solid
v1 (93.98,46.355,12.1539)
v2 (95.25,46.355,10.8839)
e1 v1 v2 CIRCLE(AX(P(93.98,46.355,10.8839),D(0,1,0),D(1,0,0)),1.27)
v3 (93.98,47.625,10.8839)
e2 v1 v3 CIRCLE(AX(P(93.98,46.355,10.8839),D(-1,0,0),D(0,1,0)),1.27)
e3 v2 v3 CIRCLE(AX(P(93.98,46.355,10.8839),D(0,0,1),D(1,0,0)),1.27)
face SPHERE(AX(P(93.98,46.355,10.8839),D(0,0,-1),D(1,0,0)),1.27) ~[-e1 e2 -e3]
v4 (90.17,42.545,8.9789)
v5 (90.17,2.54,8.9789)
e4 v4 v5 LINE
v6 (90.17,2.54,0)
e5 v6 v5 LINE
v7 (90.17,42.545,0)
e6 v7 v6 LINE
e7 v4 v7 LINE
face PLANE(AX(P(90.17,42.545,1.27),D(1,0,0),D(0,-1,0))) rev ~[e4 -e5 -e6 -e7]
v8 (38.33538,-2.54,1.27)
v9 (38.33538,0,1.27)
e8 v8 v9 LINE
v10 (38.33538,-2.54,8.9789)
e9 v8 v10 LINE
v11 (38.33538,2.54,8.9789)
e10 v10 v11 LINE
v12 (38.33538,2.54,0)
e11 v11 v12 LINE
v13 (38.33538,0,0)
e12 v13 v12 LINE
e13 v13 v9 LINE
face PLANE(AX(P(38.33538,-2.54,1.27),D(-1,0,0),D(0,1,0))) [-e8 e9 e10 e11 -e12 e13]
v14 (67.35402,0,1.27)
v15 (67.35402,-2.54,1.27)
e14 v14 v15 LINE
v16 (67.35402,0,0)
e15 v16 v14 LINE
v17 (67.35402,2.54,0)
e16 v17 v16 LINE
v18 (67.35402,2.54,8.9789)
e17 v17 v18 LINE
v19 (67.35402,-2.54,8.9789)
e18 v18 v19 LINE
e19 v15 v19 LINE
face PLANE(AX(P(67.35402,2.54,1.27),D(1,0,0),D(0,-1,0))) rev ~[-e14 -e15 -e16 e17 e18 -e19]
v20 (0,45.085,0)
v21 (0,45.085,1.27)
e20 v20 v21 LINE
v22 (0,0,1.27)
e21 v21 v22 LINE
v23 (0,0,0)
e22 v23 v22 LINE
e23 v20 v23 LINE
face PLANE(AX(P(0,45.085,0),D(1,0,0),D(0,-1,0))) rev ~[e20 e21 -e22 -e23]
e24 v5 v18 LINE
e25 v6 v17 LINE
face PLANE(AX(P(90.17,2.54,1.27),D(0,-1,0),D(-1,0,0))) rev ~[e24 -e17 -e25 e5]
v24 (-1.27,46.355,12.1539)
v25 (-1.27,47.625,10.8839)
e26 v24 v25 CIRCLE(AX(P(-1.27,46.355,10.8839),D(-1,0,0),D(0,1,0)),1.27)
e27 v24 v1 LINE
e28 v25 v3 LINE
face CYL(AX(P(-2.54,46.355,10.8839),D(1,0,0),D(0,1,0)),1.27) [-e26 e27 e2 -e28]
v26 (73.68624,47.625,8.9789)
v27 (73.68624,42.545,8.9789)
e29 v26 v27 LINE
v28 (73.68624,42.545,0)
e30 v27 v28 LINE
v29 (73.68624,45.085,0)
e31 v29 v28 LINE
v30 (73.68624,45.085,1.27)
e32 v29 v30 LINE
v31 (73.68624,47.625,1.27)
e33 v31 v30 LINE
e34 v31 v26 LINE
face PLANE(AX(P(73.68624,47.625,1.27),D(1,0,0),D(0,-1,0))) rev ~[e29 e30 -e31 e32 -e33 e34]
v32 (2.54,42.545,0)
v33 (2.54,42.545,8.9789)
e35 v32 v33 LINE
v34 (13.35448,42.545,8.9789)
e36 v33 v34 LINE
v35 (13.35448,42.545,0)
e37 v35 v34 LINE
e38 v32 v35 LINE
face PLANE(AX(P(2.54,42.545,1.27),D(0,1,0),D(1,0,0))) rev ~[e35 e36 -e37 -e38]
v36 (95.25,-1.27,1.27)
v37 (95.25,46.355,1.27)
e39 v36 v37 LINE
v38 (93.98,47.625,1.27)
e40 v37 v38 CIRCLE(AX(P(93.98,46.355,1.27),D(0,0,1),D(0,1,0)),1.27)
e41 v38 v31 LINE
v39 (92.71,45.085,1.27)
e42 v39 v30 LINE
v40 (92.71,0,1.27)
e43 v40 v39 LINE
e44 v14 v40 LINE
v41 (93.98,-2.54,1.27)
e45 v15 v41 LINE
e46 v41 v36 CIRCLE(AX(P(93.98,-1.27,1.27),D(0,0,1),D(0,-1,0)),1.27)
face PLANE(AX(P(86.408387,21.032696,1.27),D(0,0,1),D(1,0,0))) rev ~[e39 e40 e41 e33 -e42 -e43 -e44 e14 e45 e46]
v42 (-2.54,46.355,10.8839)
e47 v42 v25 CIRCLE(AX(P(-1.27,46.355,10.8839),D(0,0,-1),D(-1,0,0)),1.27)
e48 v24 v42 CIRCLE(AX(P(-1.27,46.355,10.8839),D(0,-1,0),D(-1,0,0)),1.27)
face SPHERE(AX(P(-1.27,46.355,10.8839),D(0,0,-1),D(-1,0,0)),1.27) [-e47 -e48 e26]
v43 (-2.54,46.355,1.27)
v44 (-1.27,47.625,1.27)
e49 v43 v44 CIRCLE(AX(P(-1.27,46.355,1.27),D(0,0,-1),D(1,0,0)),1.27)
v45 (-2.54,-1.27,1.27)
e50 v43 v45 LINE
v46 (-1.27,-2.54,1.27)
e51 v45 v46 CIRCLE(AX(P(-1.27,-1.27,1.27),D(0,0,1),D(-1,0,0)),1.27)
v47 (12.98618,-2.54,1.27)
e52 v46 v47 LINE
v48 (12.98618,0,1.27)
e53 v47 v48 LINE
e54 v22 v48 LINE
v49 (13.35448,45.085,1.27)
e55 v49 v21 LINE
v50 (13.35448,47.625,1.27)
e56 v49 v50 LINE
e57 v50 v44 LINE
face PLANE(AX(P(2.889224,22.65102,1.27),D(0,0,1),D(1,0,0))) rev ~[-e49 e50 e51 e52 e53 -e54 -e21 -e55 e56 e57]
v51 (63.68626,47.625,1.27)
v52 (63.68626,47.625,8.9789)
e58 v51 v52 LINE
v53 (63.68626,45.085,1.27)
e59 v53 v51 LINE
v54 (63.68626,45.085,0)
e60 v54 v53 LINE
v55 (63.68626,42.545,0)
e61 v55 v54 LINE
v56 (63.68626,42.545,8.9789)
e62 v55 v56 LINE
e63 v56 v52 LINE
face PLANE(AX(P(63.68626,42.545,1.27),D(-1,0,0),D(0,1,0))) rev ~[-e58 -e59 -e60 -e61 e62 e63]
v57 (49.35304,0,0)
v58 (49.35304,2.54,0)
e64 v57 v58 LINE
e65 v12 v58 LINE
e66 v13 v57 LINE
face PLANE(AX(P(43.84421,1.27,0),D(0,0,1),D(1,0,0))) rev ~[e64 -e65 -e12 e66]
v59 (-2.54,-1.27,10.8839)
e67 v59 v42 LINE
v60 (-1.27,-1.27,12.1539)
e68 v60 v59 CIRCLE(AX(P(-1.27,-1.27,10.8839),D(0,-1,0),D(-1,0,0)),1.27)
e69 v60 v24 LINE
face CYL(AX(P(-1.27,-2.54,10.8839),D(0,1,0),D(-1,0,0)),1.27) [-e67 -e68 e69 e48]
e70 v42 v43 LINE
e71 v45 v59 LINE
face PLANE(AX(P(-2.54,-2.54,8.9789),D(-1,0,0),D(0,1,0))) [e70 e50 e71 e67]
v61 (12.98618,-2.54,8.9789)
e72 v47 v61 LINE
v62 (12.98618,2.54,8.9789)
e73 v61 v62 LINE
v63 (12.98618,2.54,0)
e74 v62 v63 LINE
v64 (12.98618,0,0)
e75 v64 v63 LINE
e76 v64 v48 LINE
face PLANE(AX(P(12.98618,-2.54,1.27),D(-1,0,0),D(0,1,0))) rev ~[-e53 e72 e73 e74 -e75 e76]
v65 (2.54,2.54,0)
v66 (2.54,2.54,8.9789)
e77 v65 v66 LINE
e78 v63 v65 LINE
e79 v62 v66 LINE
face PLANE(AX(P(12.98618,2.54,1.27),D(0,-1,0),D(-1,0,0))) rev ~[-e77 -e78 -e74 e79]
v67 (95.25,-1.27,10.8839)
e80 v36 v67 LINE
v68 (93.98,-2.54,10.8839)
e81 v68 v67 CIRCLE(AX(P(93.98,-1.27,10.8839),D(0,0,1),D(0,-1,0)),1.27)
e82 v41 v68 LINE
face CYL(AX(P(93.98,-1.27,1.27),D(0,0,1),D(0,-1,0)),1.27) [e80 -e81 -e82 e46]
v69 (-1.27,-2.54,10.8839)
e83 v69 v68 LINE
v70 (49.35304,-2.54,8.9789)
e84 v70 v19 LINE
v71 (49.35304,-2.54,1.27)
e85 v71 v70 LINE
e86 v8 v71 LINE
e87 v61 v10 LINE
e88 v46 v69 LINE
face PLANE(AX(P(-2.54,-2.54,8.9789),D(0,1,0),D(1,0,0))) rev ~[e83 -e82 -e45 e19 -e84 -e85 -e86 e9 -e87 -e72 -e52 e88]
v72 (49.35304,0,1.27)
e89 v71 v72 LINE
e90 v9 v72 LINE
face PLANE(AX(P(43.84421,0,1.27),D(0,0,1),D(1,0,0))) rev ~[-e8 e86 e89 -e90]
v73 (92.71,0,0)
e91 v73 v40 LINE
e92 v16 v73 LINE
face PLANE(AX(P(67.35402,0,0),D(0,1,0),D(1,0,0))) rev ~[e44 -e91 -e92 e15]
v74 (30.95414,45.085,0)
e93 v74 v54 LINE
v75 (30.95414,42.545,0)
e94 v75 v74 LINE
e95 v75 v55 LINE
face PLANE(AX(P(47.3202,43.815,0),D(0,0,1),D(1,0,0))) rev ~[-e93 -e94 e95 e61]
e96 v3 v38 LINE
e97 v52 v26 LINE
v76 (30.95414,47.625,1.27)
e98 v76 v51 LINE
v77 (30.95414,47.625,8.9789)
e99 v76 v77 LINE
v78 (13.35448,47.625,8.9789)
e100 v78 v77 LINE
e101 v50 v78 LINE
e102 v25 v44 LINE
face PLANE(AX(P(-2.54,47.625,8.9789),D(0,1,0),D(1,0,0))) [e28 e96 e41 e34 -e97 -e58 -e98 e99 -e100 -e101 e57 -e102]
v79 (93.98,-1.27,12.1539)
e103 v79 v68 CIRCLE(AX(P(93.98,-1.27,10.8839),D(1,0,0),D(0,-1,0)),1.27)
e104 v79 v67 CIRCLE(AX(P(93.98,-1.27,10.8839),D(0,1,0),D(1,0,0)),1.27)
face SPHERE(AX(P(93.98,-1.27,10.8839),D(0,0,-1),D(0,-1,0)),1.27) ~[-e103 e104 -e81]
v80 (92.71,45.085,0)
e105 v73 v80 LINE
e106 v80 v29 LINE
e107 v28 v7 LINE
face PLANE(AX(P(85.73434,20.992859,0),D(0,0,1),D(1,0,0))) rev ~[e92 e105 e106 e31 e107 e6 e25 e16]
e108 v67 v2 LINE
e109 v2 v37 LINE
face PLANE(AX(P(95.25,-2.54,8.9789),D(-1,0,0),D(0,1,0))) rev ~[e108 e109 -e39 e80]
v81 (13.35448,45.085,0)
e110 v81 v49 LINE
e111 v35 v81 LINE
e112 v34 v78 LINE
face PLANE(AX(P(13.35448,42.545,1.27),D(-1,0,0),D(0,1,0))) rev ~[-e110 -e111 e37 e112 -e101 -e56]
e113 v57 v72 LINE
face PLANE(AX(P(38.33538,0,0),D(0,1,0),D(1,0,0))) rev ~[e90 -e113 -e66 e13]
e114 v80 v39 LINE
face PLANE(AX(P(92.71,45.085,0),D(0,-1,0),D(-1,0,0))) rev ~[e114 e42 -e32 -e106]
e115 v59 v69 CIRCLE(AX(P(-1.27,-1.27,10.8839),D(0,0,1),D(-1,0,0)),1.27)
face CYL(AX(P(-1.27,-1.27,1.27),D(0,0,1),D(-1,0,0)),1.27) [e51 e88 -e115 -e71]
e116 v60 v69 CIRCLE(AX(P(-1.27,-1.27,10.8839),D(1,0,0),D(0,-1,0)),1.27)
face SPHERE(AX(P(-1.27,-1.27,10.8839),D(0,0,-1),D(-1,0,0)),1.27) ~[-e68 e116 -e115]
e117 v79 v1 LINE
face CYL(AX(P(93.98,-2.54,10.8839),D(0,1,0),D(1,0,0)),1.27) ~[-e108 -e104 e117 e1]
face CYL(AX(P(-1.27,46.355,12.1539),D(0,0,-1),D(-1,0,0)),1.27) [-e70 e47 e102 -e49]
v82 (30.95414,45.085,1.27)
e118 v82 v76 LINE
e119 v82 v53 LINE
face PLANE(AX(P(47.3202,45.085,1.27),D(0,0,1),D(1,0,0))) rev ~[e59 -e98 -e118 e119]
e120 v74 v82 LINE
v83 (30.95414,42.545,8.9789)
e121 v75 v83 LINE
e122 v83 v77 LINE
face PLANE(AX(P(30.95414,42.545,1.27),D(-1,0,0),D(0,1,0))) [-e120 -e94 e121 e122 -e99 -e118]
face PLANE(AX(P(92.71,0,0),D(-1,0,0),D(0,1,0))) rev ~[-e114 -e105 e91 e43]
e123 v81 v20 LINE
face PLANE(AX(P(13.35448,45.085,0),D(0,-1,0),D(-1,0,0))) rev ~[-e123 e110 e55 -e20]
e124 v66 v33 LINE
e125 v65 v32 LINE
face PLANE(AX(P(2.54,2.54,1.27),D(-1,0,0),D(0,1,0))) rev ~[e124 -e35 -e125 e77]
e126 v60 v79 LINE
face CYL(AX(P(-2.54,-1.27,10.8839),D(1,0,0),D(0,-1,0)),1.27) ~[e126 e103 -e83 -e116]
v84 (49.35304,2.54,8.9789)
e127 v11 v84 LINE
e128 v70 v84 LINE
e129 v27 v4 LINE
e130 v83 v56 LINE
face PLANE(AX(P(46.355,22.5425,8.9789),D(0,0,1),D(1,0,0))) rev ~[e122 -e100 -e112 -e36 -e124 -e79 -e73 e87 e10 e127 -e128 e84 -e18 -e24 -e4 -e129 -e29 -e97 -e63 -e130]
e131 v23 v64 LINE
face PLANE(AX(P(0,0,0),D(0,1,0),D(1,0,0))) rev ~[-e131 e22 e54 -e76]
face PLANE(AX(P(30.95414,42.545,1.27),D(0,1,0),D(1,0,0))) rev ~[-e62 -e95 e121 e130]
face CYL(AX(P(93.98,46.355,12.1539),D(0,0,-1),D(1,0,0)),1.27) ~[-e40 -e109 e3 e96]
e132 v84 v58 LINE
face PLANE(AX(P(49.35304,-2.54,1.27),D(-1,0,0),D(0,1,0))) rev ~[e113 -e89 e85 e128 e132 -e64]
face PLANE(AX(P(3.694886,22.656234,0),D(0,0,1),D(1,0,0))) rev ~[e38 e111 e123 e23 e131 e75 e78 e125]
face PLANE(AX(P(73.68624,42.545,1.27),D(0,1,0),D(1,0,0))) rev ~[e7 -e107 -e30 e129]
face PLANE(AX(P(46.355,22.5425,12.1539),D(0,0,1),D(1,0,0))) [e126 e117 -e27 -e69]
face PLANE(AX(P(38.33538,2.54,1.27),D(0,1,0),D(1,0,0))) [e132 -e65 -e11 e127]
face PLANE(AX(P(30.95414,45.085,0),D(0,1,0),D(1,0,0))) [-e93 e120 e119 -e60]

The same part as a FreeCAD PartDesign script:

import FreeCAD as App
import Part
import Sketcher
Q = App.Units.Quantity


def edges_at(feature, points):
    """Names of the edges that pass closest to the given points."""
    edges = feature.Shape.Edges
    near = lambda p: min(range(len(edges)), key=lambda i: edges[i].distToShape(Part.Vertex(*p))[0])
    return sorted({f"Edge{near(p) + 1}" for p in points})


def add_polygon(sketch, points):
    """Adds a closed chain of lines whose ends are joined by coincident constraints."""
    first, n = sketch.GeometryCount, len(points)
    for a, b in zip(points, points[1:] + points[:1]):
        sketch.addGeometry(Part.LineSegment(App.Vector(*a, 0), App.Vector(*b, 0)), False)
    for i in range(n):
        sketch.addConstraint(Sketcher.Constraint("Coincident", first + i, 2, first + (i + 1) % n, 1))

doc = App.newDocument("Part")
params = doc.addObject("Spreadsheet::Sheet", "Params")
for row, (alias, value) in enumerate([
    ("sketch1_height", "0.1 in"),
    ("sketch1_height2", "1.775 in"),
    ("pad1_length", "0.05 in"),
    ("sketch2_height", "0.2 in"),
    ("sketch2_height2", "1.575 in"),
    ("pad2_length", "0.3035 in"),
    ("sketch3_width", "3.85 in"),
    ("sketch3_height", "1.975 in"),
    ("pad3_length", "0.125 in"),
    ("fillet_radius", "0.05 in"),
], start=1):
    params.set(f"A{row}", alias)
    params.set(f"B{row}", "=" + value)
    params.setAlias(f"B{row}", alias)

body = doc.addObject("PartDesign::Body", "Body")
body.AllowCompound = True

sketch1 = body.newObject("Sketcher::SketchObject", "Sketch")
sketch1.AttachmentSupport = (doc.getObject("XY_Plane"), [""])
sketch1.MapMode = "FlatFace"
add_polygon(sketch1, [(13.4, 42.5), (13.4, 45.1), (0, 45.1), (0, 0), (13, 0), (13, 2.5), (2.5, 2.5), (2.5, 42.5)])
add_polygon(sketch1, [(73.7, 42.5), (90.2, 42.5), (90.2, 2.5), (67.4, 2.5), (67.4, 0), (92.7, 0), (92.7, 45.1), (73.7, 45.1)])
add_polygon(sketch1, [(31, 45.1), (31, 42.5), (63.7, 42.5), (63.7, 45.1)])
add_polygon(sketch1, [(38.3, 2.5), (38.3, 0), (49.4, 0), (49.4, 2.5)])
sketch1.addConstraint(Sketcher.Constraint("Vertical", 0))
sketch1.addConstraint(Sketcher.Constraint("Horizontal", 1))
sketch1.addConstraint(Sketcher.Constraint("Vertical", 2))
sketch1.addConstraint(Sketcher.Constraint("Horizontal", 3))
sketch1.addConstraint(Sketcher.Constraint("Vertical", 4))
sketch1.addConstraint(Sketcher.Constraint("Horizontal", 5))
sketch1.addConstraint(Sketcher.Constraint("Vertical", 6))
sketch1.addConstraint(Sketcher.Constraint("Horizontal", 7))
sketch1.addConstraint(Sketcher.Constraint("Horizontal", 8))
sketch1.addConstraint(Sketcher.Constraint("Vertical", 9))
sketch1.addConstraint(Sketcher.Constraint("Horizontal", 10))
sketch1.addConstraint(Sketcher.Constraint("Vertical", 11))
sketch1.addConstraint(Sketcher.Constraint("Horizontal", 12))
sketch1.addConstraint(Sketcher.Constraint("Vertical", 13))
sketch1.addConstraint(Sketcher.Constraint("Horizontal", 14))
sketch1.addConstraint(Sketcher.Constraint("Vertical", 15))
sketch1.addConstraint(Sketcher.Constraint("Vertical", 16))
sketch1.addConstraint(Sketcher.Constraint("Horizontal", 17))
sketch1.addConstraint(Sketcher.Constraint("Vertical", 18))
sketch1.addConstraint(Sketcher.Constraint("Horizontal", 19))
sketch1.addConstraint(Sketcher.Constraint("Vertical", 20))
sketch1.addConstraint(Sketcher.Constraint("Horizontal", 21))
sketch1.addConstraint(Sketcher.Constraint("Vertical", 22))
sketch1.addConstraint(Sketcher.Constraint("Horizontal", 23))
sketch1.addConstraint(Sketcher.Constraint("Coincident", 2, 2, -1, 1))
sketch1.addConstraint(Sketcher.Constraint("PointOnObject", 11, 2, -1))
sketch1.addConstraint(Sketcher.Constraint("PointOnObject", 20, 2, -1))
sketch1.addConstraint(Sketcher.Constraint("Horizontal", 7, 2, 8, 2))
sketch1.addConstraint(Sketcher.Constraint("Horizontal", 5, 2, 9, 2))
sketch1.addConstraint(Sketcher.Constraint("Horizontal", 1, 2, 13, 2))
sketch1.addConstraint(Sketcher.Constraint("Horizontal", 15, 2, 16, 2))
sketch1.addConstraint(Sketcher.Constraint("Horizontal", 14, 2, 18, 2))
sketch1.addConstraint(Sketcher.Constraint("Horizontal", 10, 2, 22, 2))
sketch1.addConstraint(Sketcher.Constraint("Equal", 0, 4))
sketch1.addConstraint(Sketcher.Constraint("DistanceY", 0, 1, 0, 2, Q("0.1 in")))
sketch1.addConstraint(Sketcher.Constraint("DistanceX", -1, 1, 5, 2, Q("0.1 in")))
sketch1.addConstraint(Sketcher.Constraint("DistanceX", 9, 2, 12, 2, Q("0.1 in")))
sketch1.addConstraint(Sketcher.Constraint("DistanceY", 2, 2, 2, 1, Q("1.775 in")))
sketch1.addConstraint(Sketcher.Constraint("DistanceX", -1, 1, 8, 2, Q("3.55 in")))
sketch1.addConstraint(Sketcher.Constraint("DistanceX", 3, 2, 20, 2, Q("0.998 in")))
sketch1.addConstraint(Sketcher.Constraint("DistanceX", 3, 2, 0, 2, Q("0.0145 in")))
sketch1.addConstraint(Sketcher.Constraint("DistanceX", 10, 2, 14, 2, Q("0.2493 in")))
sketch1.addConstraint(Sketcher.Constraint("DistanceX", 7, 2, 16, 2, Q("0.6929 in")))
sketch1.addConstraint(Sketcher.Constraint("DistanceX", 17, 2, 15, 2, Q("0.3937 in")))
sketch1.addConstraint(Sketcher.Constraint("DistanceX", 21, 2, 11, 2, Q("0.7087 in")))
sketch1.addConstraint(Sketcher.Constraint("DistanceX", 1, 2, 1, 1, Q("13.35448 mm")))
sketch1.addConstraint(Sketcher.Constraint("DistanceX", 8, 1, 8, 2, Q("16.48376 mm")))
sketch1.setExpression("Constraints[58]", "Params.sketch1_height")
sketch1.setExpression("Constraints[61]", "Params.sketch1_height2")
pad1 = body.newObject("PartDesign::Pad", "Pad")
pad1.Profile = sketch1
pad1.setExpression("Length", "Params.pad1_length")

sketch2 = body.newObject("Sketcher::SketchObject", "Sketch001")
sketch2.AttachmentSupport = (doc.getObject("XY_Plane"), [""])
sketch2.MapMode = "FlatFace"
sketch2.AttachmentOffset = App.Placement(App.Vector(0, 0, 0.05 * 25.4), App.Rotation())
add_polygon(sketch2, [(13, 3), (3, 3), (3, 43), (13, 43), (13, 48), (-3, 48), (-3, -3), (13, -3)])
add_polygon(sketch2, [(90, 43), (90, 3), (67, 3), (67, -3), (95, -3), (95, 48), (74, 48), (74, 43)])
add_polygon(sketch2, [(31, 48), (31, 43), (64, 43), (64, 48)])
add_polygon(sketch2, [(38, 3), (38, -3), (49, -3), (49, 3)])
sketch2.addConstraint(Sketcher.Constraint("Horizontal", 0))
sketch2.addConstraint(Sketcher.Constraint("Vertical", 1))
sketch2.addConstraint(Sketcher.Constraint("Horizontal", 2))
sketch2.addConstraint(Sketcher.Constraint("Vertical", 3))
sketch2.addConstraint(Sketcher.Constraint("Horizontal", 4))
sketch2.addConstraint(Sketcher.Constraint("Vertical", 5))
sketch2.addConstraint(Sketcher.Constraint("Horizontal", 6))
sketch2.addConstraint(Sketcher.Constraint("Vertical", 7))
sketch2.addConstraint(Sketcher.Constraint("Vertical", 8))
sketch2.addConstraint(Sketcher.Constraint("Horizontal", 9))
sketch2.addConstraint(Sketcher.Constraint("Vertical", 10))
sketch2.addConstraint(Sketcher.Constraint("Horizontal", 11))
sketch2.addConstraint(Sketcher.Constraint("Vertical", 12))
sketch2.addConstraint(Sketcher.Constraint("Horizontal", 13))
sketch2.addConstraint(Sketcher.Constraint("Vertical", 14))
sketch2.addConstraint(Sketcher.Constraint("Horizontal", 15))
sketch2.addConstraint(Sketcher.Constraint("Vertical", 16))
sketch2.addConstraint(Sketcher.Constraint("Horizontal", 17))
sketch2.addConstraint(Sketcher.Constraint("Vertical", 18))
sketch2.addConstraint(Sketcher.Constraint("Horizontal", 19))
sketch2.addConstraint(Sketcher.Constraint("Vertical", 20))
sketch2.addConstraint(Sketcher.Constraint("Horizontal", 21))
sketch2.addConstraint(Sketcher.Constraint("Vertical", 22))
sketch2.addConstraint(Sketcher.Constraint("Horizontal", 23))
sketch2.addConstraint(Sketcher.Constraint("Symmetric", 0, 2, 5, 2, -1, 1))
sketch2.addConstraint(Sketcher.Constraint("Horizontal", 7, 2, 8, 2))
sketch2.addConstraint(Sketcher.Constraint("Horizontal", 6, 2, 10, 2))
sketch2.addConstraint(Sketcher.Constraint("Horizontal", 4, 2, 12, 2))
sketch2.addConstraint(Sketcher.Constraint("Horizontal", 2, 2, 14, 2))
sketch2.addConstraint(Sketcher.Constraint("Horizontal", 15, 2, 16, 2))
sketch2.addConstraint(Sketcher.Constraint("Horizontal", 13, 2, 18, 2))
sketch2.addConstraint(Sketcher.Constraint("Horizontal", 11, 2, 20, 2))
sketch2.addConstraint(Sketcher.Constraint("Horizontal", 9, 2, 22, 2))
sketch2.addConstraint(Sketcher.Constraint("Equal", 3, 7))
sketch2.addConstraint(Sketcher.Constraint("DistanceY", 3, 1, 3, 2, Q("0.2 in")))
sketch2.addConstraint(Sketcher.Constraint("DistanceX", -1, 1, 0, 2, Q("0.1 in")))
sketch2.addConstraint(Sketcher.Constraint("DistanceX", 8, 2, 11, 2, Q("0.2 in")))
sketch2.addConstraint(Sketcher.Constraint("DistanceY", 1, 1, 1, 2, Q("1.575 in")))
sketch2.addConstraint(Sketcher.Constraint("DistanceX", -1, 1, 8, 2, Q("3.55 in")))
sketch2.addConstraint(Sketcher.Constraint("DistanceX", 6, 2, 20, 2, Q("0.998 in")))
sketch2.addConstraint(Sketcher.Constraint("DistanceX", 6, 2, 2, 2, Q("0.0145 in")))
sketch2.addConstraint(Sketcher.Constraint("DistanceX", 9, 2, 13, 2, Q("0.2493 in")))
sketch2.addConstraint(Sketcher.Constraint("DistanceX", 2, 2, 16, 2, Q("0.6929 in")))
sketch2.addConstraint(Sketcher.Constraint("DistanceX", 17, 2, 14, 2, Q("0.3937 in")))
sketch2.addConstraint(Sketcher.Constraint("DistanceX", 21, 2, 10, 2, Q("0.7087 in")))
sketch2.addConstraint(Sketcher.Constraint("DistanceX", 0, 2, 0, 1, Q("10.44618 mm")))
sketch2.addConstraint(Sketcher.Constraint("DistanceX", 9, 2, 9, 1, Q("22.81598 mm")))
sketch2.setExpression("Constraints[58]", "Params.sketch2_height")
sketch2.setExpression("Constraints[61]", "Params.sketch2_height2")
pad2 = body.newObject("PartDesign::Pad", "Pad001")
pad2.Profile = sketch2
pad2.setExpression("Length", "Params.pad2_length")

sketch3 = body.newObject("Sketcher::SketchObject", "Sketch002")
sketch3.AttachmentSupport = (doc.getObject("XY_Plane"), [""])
sketch3.MapMode = "FlatFace"
sketch3.AttachmentOffset = App.Placement(App.Vector(0, 0, 0.3535 * 25.4), App.Rotation())
add_polygon(sketch3, [(-3, 48), (-3, -3), (95, -3), (95, 48)])
sketch3.addConstraint(Sketcher.Constraint("Vertical", 0))
sketch3.addConstraint(Sketcher.Constraint("Horizontal", 1))
sketch3.addConstraint(Sketcher.Constraint("Vertical", 2))
sketch3.addConstraint(Sketcher.Constraint("Horizontal", 3))
sketch3.addConstraint(Sketcher.Constraint("DistanceX", 1, 1, 1, 2, Q("3.85 in")))
sketch3.addConstraint(Sketcher.Constraint("DistanceX", 0, 2, -1, 1, Q("0.1 in")))
sketch3.addConstraint(Sketcher.Constraint("DistanceY", 0, 2, -1, 1, Q("0.1 in")))
sketch3.addConstraint(Sketcher.Constraint("DistanceY", 0, 2, 0, 1, Q("1.975 in")))
sketch3.setExpression("Constraints[8]", "Params.sketch3_width")
sketch3.setExpression("Constraints[11]", "Params.sketch3_height")
pad3 = body.newObject("PartDesign::Pad", "Pad002")
pad3.Profile = sketch3
pad3.setExpression("Length", "Params.pad3_length")
doc.recompute()

fillet = body.newObject("PartDesign::Fillet", "Fillet")
fillet.Base = (pad3, edges_at(pad3, [
    (95.25, -2.54, 6.712),
    (-2.54, -2.54, 6.712),
    (95.25, 47.625, 6.712),
    (-2.54, 47.625, 6.712),
    (-2.54, 22.543, 12.154),
    (46.355, -2.54, 12.154),
    (95.25, 22.543, 12.154),
    (46.355, 47.625, 12.154),
]))
fillet.setExpression("Radius", "Params.fillet_radius")

doc.recompute()
